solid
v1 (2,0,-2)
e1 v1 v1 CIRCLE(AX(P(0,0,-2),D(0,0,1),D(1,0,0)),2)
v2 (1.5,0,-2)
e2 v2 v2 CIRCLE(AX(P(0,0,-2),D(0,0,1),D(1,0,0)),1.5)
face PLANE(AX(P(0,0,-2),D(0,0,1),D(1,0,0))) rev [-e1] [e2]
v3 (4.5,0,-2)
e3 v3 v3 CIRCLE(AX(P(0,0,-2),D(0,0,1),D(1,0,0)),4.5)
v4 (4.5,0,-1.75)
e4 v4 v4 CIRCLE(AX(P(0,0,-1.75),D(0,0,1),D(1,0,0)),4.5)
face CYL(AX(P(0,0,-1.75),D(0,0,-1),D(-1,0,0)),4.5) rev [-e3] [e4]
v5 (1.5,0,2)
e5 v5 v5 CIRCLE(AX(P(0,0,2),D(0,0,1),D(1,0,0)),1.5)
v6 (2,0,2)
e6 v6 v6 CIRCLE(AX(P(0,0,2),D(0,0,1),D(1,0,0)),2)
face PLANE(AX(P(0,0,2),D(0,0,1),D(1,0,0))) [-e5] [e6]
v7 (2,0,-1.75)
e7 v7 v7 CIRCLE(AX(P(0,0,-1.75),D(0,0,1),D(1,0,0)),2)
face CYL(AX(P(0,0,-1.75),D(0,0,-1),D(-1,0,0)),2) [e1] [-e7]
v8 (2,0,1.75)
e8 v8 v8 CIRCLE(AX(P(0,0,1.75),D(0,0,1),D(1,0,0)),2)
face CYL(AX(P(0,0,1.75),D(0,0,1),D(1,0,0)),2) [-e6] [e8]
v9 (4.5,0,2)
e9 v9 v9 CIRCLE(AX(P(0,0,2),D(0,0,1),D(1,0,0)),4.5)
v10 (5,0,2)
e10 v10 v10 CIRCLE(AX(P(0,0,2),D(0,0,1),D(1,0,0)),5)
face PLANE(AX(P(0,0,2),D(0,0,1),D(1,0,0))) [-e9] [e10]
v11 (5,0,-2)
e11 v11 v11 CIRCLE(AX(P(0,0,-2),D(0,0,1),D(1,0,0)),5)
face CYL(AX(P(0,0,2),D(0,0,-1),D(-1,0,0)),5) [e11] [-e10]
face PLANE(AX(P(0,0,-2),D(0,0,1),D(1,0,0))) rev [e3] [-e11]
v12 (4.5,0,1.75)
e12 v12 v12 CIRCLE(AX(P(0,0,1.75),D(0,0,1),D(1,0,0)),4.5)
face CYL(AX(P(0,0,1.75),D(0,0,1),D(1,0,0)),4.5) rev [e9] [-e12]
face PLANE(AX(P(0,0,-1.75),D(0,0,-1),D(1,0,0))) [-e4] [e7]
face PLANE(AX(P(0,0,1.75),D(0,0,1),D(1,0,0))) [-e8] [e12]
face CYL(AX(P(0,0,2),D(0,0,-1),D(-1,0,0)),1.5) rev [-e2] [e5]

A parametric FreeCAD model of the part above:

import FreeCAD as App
import Part
import Sketcher

doc = App.newDocument("Part")
params = doc.addObject("Spreadsheet::Sheet", "Params")
for row, (alias, value) in enumerate([
    ("sketch1_diameter", "10 mm"),
    ("sketch1_diameter2", "3 mm"),
    ("pad1_length", "4 mm"),
    ("sketch2_diameter", "9 mm"),
    ("sketch2_diameter2", "4 mm"),
    ("pocket1_length", "0.25 mm"),
], start=1):
    params.set(f"A{row}", alias)
    params.set(f"B{row}", "=" + value)
    params.setAlias(f"B{row}", alias)

body = doc.addObject("PartDesign::Body", "Body")

sketch1 = body.newObject("Sketcher::SketchObject", "Sketch")
sketch1.AttachmentSupport = (doc.getObject("XY_Plane"), [""])
sketch1.MapMode = "FlatFace"
sketch1.addGeometry([
    Part.Circle(App.Vector(0, 0, 0), App.Vector(0, 0, 1), 5),
    Part.Circle(App.Vector(0, 0, 0), App.Vector(0, 0, 1), 1.5),
], False)
sketch1.addConstraint([
    Sketcher.Constraint("Coincident", 0, 3, -1, 1),
    Sketcher.Constraint("Coincident", 1, 3, -1, 1),
    Sketcher.Constraint("Diameter", 0, 10.0),
    Sketcher.Constraint("Diameter", 1, 3.0),
])
sketch1.setExpression("Constraints[2]", "Params.sketch1_diameter")
sketch1.setExpression("Constraints[3]", "Params.sketch1_diameter2")
pad1 = body.newObject("PartDesign::Pad", "Pad")
pad1.Profile = sketch1
pad1.setExpression("Length", "Params.pad1_length")
pad1.Midplane = True

sketch2 = body.newObject("Sketcher::SketchObject", "Sketch001")
sketch2.AttachmentSupport = (doc.getObject("XY_Plane"), [""])
sketch2.MapMode = "FlatFace"
sketch2.AttachmentOffset = App.Placement(App.Vector(0, 0, 2), App.Rotation())
sketch2.addGeometry([
    Part.Circle(App.Vector(0, 0, 0), App.Vector(0, 0, 1), 4.5),
    Part.Circle(App.Vector(0, 0, 0), App.Vector(0, 0, 1), 2),
], False)
sketch2.addConstraint([
    Sketcher.Constraint("Coincident", 0, 3, -1, 1),
    Sketcher.Constraint("Coincident", 1, 3, -1, 1),
    Sketcher.Constraint("Diameter", 0, 9.0),
    Sketcher.Constraint("Diameter", 1, 4.0),
])
sketch2.setExpression("Constraints[2]", "Params.sketch2_diameter")
sketch2.setExpression("Constraints[3]", "Params.sketch2_diameter2")
pocket1 = body.newObject("PartDesign::Pocket", "Pocket")
pocket1.Profile = sketch2
pocket1.setExpression("Length", "Params.pocket1_length")
doc.recompute()

mirrored = body.newObject("PartDesign::Mirrored", "Mirrored")
mirrored.Originals = [pocket1]
mirrored.MirrorPlane = (doc.getObject("XY_Plane"), [""])
body.Tip = mirrored

doc.recompute()
